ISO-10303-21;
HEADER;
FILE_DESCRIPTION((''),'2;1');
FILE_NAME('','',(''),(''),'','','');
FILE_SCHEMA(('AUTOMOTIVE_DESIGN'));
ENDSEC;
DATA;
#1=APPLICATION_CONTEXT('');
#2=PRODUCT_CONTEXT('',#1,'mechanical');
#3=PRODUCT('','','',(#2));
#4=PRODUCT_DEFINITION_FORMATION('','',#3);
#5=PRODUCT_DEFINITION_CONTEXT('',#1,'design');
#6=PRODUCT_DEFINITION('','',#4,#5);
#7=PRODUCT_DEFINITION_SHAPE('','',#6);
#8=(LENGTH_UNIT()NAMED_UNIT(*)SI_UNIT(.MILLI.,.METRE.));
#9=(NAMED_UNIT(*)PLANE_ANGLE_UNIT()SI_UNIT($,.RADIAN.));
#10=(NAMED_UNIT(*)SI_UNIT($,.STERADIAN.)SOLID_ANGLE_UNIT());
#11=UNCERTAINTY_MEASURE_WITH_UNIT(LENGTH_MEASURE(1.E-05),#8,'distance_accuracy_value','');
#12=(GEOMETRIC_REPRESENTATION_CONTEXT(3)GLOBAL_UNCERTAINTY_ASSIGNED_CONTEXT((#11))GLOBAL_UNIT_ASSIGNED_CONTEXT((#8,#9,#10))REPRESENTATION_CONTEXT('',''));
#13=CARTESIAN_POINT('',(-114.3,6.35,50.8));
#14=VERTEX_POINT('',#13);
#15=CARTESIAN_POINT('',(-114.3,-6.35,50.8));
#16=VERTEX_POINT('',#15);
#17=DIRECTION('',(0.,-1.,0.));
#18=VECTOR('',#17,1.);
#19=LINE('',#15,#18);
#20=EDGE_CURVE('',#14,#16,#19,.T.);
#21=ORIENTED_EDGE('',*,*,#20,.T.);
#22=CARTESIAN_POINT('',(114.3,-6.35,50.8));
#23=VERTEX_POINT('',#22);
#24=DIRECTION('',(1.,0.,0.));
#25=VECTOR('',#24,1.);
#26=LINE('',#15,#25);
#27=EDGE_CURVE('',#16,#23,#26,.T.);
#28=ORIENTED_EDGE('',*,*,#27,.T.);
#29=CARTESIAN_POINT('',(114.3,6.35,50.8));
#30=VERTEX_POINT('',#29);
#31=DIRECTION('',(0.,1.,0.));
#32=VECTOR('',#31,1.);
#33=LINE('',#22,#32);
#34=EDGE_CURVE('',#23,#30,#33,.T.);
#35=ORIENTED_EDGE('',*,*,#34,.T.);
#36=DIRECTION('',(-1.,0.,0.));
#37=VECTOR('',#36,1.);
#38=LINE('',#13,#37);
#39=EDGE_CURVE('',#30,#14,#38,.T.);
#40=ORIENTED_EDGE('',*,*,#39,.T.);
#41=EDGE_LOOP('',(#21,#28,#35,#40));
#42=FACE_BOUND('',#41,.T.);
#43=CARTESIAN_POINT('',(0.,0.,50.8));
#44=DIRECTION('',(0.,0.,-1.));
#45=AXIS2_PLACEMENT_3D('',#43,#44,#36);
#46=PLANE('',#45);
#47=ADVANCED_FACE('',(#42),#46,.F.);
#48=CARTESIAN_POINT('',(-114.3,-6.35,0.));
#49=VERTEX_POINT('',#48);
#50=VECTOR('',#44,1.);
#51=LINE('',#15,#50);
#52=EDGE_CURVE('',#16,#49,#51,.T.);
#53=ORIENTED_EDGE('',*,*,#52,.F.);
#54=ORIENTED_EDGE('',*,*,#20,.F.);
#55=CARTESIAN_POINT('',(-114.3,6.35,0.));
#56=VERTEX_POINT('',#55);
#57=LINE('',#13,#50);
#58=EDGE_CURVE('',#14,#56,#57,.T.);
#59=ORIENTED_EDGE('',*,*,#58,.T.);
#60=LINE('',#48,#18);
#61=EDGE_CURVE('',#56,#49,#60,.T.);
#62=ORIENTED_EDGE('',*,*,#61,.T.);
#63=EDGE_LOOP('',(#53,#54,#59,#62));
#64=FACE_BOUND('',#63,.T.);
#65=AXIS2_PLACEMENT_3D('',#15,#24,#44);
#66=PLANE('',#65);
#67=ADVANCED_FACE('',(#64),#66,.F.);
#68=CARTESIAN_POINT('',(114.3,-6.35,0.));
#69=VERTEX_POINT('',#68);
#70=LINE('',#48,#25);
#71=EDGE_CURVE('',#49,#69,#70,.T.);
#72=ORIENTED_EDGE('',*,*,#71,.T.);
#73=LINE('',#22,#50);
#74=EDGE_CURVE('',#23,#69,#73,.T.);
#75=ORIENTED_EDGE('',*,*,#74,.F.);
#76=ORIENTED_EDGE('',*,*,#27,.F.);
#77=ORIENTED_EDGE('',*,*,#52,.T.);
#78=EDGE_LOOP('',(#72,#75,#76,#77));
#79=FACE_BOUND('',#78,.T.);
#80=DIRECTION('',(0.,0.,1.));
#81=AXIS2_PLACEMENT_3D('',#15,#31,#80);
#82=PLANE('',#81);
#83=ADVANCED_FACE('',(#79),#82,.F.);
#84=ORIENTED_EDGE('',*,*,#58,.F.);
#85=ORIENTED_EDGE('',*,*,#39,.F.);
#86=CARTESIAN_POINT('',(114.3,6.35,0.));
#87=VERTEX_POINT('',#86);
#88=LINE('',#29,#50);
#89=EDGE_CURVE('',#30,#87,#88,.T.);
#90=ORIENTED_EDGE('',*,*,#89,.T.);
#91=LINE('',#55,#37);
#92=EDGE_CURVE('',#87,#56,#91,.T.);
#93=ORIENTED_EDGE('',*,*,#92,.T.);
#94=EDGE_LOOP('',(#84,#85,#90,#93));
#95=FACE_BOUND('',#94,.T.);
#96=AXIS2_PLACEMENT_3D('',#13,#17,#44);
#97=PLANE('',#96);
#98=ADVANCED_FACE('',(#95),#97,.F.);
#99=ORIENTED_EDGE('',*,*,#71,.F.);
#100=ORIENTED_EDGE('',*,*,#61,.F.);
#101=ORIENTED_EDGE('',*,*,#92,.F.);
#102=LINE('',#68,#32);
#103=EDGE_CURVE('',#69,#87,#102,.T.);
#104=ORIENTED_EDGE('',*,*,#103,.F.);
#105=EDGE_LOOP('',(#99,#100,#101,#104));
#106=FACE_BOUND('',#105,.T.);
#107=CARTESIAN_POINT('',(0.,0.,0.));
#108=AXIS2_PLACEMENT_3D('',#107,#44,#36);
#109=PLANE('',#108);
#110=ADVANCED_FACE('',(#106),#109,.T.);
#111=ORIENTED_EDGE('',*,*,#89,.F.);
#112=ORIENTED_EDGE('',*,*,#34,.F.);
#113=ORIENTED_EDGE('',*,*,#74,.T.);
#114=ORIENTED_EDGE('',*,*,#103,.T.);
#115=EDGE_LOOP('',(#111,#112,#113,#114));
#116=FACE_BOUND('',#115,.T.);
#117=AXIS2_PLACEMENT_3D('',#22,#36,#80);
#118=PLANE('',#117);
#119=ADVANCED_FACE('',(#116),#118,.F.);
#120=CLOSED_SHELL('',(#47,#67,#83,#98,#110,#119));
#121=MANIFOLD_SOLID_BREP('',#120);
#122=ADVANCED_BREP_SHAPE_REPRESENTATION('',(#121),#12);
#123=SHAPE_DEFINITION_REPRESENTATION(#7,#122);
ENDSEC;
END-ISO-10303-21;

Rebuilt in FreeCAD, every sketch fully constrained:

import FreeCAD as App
import Part
import Sketcher

V = App.Vector
Q = App.Units.Quantity


def add_polygon(sketch, points):
    """Adds a closed chain of lines whose ends are joined by coincident constraints."""
    first, n = sketch.GeometryCount, len(points)
    for a, b in zip(points, points[1:] + points[:1]):
        sketch.addGeometry(Part.LineSegment(App.Vector(*a, 0), App.Vector(*b, 0)), False)
    for i in range(n):
        sketch.addConstraint(Sketcher.Constraint("Coincident", first + i, 2, first + (i + 1) % n, 1))

doc = App.newDocument("Part")
body = doc.addObject("PartDesign::Body", "Body")

# Sketch on XY plane
sketch1 = doc.addObject("Sketcher::SketchObject", "Sketch")
body.addObject(sketch1)
sketch1.AttachmentSupport = (doc.XY_Plane, [""])
sketch1.MapMode = "FlatFace"
add_polygon(sketch1, [(-114, 6), (-114, -6), (114, -6), (114, 6)])  # lines 0-3
sketch1.addConstraint(Sketcher.Constraint("Vertical", 0))
sketch1.addConstraint(Sketcher.Constraint("Horizontal", 1))
sketch1.addConstraint(Sketcher.Constraint("Vertical", 2))
sketch1.addConstraint(Sketcher.Constraint("Horizontal", 3))
sketch1.addConstraint(Sketcher.Constraint("Symmetric", 0, 2, 2, 2, -1, 1))
sketch1.addConstraint(Sketcher.Constraint("DistanceX", 1, 1, 1, 2, Q("9 in")))
sketch1.addConstraint(Sketcher.Constraint("DistanceY", 0, 2, 0, 1, Q("0.5 in")))
pad1 = doc.addObject("PartDesign::Pad", "Pad")
body.addObject(pad1)
pad1.Profile = sketch1
pad1.Length = Q("2 in")

doc.recompute()
